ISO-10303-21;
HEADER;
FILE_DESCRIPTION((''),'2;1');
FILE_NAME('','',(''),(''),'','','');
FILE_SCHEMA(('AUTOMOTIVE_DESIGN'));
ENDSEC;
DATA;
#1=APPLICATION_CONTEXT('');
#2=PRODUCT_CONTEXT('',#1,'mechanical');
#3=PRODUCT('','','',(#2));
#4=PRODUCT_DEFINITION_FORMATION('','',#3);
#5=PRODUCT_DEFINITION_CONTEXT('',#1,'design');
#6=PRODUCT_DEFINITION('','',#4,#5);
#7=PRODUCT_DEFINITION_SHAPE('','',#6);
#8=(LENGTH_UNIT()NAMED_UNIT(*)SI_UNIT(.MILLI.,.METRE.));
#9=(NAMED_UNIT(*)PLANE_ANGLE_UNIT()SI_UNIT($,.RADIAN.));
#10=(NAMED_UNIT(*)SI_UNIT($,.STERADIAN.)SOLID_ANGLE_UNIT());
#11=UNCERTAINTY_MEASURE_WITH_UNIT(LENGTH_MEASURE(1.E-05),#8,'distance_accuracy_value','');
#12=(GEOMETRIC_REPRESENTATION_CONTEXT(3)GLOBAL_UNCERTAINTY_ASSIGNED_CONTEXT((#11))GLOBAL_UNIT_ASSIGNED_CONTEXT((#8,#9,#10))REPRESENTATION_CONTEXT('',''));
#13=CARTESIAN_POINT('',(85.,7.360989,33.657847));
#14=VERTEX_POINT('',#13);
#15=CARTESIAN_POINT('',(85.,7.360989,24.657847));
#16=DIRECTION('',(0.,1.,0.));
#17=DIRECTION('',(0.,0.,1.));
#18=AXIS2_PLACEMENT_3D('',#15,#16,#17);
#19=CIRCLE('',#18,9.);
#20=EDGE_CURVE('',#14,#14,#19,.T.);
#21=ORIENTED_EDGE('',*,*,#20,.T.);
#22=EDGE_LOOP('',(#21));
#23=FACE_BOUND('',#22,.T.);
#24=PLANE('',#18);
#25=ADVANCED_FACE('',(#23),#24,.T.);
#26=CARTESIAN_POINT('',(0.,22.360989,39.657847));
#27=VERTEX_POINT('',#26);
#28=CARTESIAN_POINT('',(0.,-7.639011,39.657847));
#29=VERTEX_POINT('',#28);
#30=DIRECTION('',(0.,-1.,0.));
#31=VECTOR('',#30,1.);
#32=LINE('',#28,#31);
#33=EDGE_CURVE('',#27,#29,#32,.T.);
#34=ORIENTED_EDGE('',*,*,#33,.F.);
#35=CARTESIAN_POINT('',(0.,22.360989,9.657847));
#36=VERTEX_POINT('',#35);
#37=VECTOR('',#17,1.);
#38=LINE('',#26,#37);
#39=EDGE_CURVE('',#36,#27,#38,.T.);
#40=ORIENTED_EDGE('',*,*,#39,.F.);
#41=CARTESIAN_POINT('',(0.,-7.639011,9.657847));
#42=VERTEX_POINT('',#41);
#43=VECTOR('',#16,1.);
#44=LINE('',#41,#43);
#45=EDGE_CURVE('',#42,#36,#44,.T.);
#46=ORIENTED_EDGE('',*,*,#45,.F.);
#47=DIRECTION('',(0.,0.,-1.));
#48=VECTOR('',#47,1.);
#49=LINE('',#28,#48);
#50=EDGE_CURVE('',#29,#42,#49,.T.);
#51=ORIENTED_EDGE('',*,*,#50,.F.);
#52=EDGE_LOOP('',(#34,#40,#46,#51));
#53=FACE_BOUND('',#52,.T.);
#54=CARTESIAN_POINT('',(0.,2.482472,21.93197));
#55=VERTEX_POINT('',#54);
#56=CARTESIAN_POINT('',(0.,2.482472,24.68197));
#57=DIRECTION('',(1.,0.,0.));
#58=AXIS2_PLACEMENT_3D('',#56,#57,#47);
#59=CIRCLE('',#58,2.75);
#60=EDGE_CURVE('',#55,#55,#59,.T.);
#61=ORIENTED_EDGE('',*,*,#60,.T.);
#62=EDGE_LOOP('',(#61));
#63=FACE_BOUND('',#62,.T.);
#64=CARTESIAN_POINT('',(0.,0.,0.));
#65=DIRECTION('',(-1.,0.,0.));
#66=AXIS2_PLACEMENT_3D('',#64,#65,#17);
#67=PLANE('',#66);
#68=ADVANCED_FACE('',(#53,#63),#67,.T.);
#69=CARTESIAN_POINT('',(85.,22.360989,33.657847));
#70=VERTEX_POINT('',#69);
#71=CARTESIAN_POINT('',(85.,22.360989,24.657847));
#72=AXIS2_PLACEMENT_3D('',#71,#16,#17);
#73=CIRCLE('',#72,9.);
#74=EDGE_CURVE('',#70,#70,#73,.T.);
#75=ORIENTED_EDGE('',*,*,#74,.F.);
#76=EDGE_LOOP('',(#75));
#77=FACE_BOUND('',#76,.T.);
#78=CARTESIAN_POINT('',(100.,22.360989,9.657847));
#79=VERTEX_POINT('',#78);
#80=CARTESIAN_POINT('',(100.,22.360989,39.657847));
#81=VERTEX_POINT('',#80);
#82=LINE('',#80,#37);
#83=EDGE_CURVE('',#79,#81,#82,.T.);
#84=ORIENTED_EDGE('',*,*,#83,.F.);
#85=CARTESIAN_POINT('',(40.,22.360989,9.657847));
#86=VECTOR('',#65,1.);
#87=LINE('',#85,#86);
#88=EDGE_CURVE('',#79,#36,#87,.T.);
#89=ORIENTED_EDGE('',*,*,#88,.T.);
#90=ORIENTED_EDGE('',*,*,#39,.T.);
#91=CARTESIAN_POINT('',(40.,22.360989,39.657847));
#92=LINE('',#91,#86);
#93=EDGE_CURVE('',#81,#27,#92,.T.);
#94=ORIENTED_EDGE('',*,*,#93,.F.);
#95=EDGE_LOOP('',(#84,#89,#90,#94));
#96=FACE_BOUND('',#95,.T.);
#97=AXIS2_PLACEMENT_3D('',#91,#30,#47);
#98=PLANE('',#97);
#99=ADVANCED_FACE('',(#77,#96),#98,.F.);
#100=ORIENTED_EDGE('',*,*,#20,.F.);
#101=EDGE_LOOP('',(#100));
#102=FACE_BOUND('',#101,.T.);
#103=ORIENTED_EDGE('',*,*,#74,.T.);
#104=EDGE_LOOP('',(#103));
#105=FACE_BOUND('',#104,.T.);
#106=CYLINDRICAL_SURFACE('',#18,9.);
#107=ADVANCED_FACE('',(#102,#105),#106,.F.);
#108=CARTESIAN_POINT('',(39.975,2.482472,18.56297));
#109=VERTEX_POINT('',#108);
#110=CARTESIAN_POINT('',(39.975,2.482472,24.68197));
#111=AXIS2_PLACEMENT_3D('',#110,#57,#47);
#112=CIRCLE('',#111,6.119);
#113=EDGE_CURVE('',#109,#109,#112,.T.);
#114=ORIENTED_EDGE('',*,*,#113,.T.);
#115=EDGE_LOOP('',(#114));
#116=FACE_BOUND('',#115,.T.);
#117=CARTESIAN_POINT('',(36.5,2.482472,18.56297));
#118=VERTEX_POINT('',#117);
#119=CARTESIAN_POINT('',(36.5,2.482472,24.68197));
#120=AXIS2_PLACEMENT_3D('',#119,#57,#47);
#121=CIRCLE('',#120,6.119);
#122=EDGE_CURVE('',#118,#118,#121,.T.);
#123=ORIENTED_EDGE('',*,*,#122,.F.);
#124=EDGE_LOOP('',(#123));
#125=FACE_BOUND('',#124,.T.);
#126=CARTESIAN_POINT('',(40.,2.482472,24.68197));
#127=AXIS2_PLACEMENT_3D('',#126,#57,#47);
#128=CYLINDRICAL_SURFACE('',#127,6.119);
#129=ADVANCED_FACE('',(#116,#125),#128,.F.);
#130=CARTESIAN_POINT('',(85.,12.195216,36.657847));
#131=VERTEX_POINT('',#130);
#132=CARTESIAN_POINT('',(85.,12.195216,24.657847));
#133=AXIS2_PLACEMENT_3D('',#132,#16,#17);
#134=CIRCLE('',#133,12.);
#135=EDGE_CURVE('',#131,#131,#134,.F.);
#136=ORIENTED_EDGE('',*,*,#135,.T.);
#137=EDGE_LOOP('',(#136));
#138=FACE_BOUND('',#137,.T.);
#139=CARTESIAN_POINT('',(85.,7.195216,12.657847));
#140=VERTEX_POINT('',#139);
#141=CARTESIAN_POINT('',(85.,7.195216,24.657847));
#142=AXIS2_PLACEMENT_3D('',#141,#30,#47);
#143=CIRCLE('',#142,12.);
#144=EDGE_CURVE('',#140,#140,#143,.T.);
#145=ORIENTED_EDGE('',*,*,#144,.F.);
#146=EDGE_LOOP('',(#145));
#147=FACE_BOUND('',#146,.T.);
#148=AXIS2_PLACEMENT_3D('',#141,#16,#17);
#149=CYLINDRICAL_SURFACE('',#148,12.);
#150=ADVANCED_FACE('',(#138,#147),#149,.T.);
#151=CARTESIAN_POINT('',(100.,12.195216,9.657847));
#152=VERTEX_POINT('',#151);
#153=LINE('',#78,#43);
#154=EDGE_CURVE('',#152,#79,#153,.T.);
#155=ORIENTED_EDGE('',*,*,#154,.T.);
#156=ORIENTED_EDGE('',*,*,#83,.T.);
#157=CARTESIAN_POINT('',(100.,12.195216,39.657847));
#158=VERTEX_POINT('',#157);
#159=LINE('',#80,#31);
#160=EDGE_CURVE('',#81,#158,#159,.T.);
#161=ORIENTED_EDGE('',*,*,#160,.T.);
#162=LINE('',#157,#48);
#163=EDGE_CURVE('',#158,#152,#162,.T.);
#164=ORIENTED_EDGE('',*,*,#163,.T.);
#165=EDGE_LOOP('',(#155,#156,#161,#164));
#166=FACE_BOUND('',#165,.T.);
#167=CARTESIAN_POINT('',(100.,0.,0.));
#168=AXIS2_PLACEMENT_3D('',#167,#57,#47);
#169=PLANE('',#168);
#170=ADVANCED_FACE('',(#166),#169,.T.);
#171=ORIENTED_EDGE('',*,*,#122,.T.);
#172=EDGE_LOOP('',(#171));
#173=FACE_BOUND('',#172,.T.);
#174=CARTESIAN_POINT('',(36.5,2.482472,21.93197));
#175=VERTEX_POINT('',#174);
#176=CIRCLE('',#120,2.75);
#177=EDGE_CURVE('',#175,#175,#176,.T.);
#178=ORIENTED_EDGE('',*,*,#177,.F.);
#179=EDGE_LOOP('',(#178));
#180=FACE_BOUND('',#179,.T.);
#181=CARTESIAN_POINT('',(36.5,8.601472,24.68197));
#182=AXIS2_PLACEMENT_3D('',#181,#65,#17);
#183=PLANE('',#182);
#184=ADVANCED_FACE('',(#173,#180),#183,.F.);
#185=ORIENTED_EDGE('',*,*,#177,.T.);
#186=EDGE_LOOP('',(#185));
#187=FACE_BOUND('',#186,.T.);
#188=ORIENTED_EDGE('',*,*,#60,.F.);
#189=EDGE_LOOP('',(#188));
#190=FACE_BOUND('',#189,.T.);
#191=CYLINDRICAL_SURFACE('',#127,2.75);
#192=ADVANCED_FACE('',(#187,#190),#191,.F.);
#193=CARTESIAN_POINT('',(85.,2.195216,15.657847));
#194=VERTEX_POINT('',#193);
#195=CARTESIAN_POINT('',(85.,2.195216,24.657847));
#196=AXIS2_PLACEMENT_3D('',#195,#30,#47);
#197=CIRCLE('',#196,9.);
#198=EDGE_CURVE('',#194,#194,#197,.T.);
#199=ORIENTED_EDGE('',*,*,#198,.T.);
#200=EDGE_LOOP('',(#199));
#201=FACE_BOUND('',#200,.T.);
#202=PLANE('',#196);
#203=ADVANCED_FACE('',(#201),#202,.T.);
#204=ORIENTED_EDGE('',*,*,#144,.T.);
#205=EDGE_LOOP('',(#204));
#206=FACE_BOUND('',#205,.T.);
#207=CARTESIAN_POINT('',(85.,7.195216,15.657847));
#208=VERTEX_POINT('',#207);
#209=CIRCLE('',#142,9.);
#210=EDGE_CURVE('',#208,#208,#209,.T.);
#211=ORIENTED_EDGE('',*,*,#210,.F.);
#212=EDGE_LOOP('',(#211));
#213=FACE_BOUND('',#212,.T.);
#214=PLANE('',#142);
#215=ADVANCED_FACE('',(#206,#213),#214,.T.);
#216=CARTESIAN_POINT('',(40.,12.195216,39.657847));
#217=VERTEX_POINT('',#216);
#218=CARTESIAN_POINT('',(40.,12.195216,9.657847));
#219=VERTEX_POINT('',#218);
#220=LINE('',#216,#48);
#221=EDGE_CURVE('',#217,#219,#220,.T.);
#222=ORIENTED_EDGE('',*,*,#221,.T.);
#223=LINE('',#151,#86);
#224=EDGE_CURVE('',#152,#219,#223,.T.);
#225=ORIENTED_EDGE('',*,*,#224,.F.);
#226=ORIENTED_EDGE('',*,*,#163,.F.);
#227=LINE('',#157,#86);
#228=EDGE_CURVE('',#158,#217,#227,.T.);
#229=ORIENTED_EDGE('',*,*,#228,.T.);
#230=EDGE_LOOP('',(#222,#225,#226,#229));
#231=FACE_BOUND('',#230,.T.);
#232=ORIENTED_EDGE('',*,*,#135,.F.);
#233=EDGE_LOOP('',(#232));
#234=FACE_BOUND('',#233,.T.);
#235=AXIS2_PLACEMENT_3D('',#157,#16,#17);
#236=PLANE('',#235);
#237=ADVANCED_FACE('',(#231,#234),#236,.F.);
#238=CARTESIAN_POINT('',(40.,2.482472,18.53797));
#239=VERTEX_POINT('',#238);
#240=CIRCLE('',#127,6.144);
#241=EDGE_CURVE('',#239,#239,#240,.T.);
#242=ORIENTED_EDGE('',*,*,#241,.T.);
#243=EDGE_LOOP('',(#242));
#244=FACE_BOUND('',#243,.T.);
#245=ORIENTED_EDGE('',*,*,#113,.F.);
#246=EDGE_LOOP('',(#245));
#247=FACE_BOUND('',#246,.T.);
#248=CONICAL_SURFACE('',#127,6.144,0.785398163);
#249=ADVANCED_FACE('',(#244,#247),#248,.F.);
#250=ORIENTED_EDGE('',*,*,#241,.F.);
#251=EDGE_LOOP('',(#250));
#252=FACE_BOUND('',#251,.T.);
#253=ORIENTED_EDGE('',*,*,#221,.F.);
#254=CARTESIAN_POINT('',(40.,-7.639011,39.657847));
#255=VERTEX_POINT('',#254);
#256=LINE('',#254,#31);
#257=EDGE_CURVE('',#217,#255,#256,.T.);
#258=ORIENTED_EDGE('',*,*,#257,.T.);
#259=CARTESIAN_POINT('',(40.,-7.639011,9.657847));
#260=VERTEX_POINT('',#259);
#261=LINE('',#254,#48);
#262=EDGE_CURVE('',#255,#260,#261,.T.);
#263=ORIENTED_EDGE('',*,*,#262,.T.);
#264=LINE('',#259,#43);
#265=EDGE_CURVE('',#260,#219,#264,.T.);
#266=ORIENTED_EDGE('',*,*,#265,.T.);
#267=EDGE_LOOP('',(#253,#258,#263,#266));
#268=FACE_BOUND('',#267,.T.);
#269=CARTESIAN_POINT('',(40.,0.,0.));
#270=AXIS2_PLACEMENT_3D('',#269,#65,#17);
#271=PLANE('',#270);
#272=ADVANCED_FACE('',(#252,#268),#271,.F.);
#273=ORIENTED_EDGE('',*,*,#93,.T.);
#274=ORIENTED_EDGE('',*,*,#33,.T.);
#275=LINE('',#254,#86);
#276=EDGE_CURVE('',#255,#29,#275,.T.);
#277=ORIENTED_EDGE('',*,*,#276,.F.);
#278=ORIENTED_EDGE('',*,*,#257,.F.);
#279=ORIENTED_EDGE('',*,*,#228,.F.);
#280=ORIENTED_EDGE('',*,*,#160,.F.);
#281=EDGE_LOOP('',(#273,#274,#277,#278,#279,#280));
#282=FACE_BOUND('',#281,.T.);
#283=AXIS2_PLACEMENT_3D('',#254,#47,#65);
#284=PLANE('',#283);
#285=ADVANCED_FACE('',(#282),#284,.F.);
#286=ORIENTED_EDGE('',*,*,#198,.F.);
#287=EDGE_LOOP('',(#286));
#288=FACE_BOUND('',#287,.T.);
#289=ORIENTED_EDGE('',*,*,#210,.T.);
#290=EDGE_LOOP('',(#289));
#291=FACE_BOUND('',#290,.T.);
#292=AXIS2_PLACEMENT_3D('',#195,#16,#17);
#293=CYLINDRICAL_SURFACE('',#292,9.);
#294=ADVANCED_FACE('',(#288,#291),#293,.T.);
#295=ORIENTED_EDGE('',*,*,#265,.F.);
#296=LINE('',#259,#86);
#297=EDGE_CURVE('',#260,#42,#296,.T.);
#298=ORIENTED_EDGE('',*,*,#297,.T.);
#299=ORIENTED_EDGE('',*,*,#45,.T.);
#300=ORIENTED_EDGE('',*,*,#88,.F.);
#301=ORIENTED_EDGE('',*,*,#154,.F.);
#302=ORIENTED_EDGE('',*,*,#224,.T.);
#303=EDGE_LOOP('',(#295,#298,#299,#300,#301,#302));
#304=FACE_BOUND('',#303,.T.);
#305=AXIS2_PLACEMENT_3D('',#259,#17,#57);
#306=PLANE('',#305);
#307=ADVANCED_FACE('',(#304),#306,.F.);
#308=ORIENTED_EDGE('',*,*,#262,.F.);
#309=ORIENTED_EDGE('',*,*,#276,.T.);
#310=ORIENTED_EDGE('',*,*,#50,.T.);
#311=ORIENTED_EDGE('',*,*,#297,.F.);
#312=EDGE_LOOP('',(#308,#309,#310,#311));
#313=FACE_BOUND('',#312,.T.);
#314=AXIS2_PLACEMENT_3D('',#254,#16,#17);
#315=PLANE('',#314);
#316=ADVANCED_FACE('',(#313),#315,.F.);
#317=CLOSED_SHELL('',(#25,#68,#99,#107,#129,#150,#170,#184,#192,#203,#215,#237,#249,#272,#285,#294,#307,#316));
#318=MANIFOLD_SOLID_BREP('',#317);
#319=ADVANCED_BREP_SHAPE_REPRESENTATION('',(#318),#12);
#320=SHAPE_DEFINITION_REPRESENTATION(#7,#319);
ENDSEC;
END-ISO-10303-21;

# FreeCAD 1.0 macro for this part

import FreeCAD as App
import Part
import Sketcher
from FreeCAD import Vector
Q = App.Units.Quantity

doc = App.newDocument("Part")
body = doc.addObject("PartDesign::Body", "Body")

# Sketch on YZ plane
sketch1 = doc.addObject("Sketcher::SketchObject", "Sketch")
body.addObject(sketch1)
sketch1.AttachmentSupport = (doc.YZ_Plane, [""])
sketch1.MapMode = "FlatFace"
sketch1.addGeometry(Part.LineSegment(Vector(22, 40, 0), Vector(-8, 40, 0)), False)
sketch1.addGeometry(Part.LineSegment(Vector(-8, 40, 0), Vector(-8, 10, 0)), False)
sketch1.addGeometry(Part.LineSegment(Vector(-8, 10, 0), Vector(22, 10, 0)), False)
sketch1.addGeometry(Part.LineSegment(Vector(22, 10, 0), Vector(22, 40, 0)), False)
sketch1.addConstraint(Sketcher.Constraint("Coincident", 0, 2, 1, 1))
sketch1.addConstraint(Sketcher.Constraint("Coincident", 1, 2, 2, 1))
sketch1.addConstraint(Sketcher.Constraint("Coincident", 2, 2, 3, 1))
sketch1.addConstraint(Sketcher.Constraint("Coincident", 3, 2, 0, 1))
sketch1.addConstraint(Sketcher.Constraint("Horizontal", 0))
sketch1.addConstraint(Sketcher.Constraint("Vertical", 1))
sketch1.addConstraint(Sketcher.Constraint("Horizontal", 2))
sketch1.addConstraint(Sketcher.Constraint("Vertical", 3))
sketch1.addConstraint(Sketcher.Constraint("Equal", 2, 1))
sketch1.addConstraint(Sketcher.Constraint("DistanceX", 0, 2, 0, 1, 30.0))
sketch1.addConstraint(Sketcher.Constraint("DistanceX", 0, 2, -1, 1, 7.639011))
sketch1.addConstraint(Sketcher.Constraint("DistanceY", -1, 1, 0, 2, 39.657847))
pad1 = doc.addObject("PartDesign::Pad", "Pad")
body.addObject(pad1)
pad1.Profile = sketch1
pad1.Length = 40

# Sketch on YZ plane
sketch2 = doc.addObject("Sketcher::SketchObject", "Sketch001")
body.addObject(sketch2)
sketch2.AttachmentSupport = (doc.YZ_Plane, [""])
sketch2.MapMode = "FlatFace"
sketch2.AttachmentOffset = App.Placement(Vector(0, 0, 40), App.Rotation())
sketch2.addGeometry(Part.LineSegment(Vector(22, 40, 0), Vector(12, 40, 0)), False)
sketch2.addGeometry(Part.LineSegment(Vector(12, 40, 0), Vector(12, 10, 0)), False)
sketch2.addGeometry(Part.LineSegment(Vector(12, 10, 0), Vector(22, 10, 0)), False)
sketch2.addGeometry(Part.LineSegment(Vector(22, 10, 0), Vector(22, 40, 0)), False)
sketch2.addConstraint(Sketcher.Constraint("Coincident", 0, 2, 1, 1))
sketch2.addConstraint(Sketcher.Constraint("Coincident", 1, 2, 2, 1))
sketch2.addConstraint(Sketcher.Constraint("Coincident", 2, 2, 3, 1))
sketch2.addConstraint(Sketcher.Constraint("Coincident", 3, 2, 0, 1))
sketch2.addConstraint(Sketcher.Constraint("Horizontal", 0))
sketch2.addConstraint(Sketcher.Constraint("Vertical", 1))
sketch2.addConstraint(Sketcher.Constraint("Horizontal", 2))
sketch2.addConstraint(Sketcher.Constraint("Vertical", 3))
sketch2.addConstraint(Sketcher.Constraint("DistanceY", 1, 2, 1, 1, 30.0))
sketch2.addConstraint(Sketcher.Constraint("DistanceX", 0, 2, 0, 1, 10.165772))
sketch2.addConstraint(Sketcher.Constraint("DistanceX", -1, 1, 2, 2, 22.360989))
sketch2.addConstraint(Sketcher.Constraint("DistanceY", -1, 1, 0, 2, 39.657847))
pad2 = doc.addObject("PartDesign::Pad", "Pad001")
body.addObject(pad2)
pad2.Profile = sketch2
pad2.Length = 60

# Sketch on XZ plane
sketch3 = doc.addObject("Sketcher::SketchObject", "Sketch002")
body.addObject(sketch3)
sketch3.AttachmentSupport = (doc.XZ_Plane, [""])
sketch3.MapMode = "FlatFace"
sketch3.AttachmentOffset = App.Placement(Vector(0, 0, -12.195216), App.Rotation())
sketch3.addGeometry(Part.Circle(Vector(85, 25, 0), Vector(0, 0, 1), 12), False)
sketch3.addConstraint(Sketcher.Constraint("Diameter", 0, 24.0))
sketch3.addConstraint(Sketcher.Constraint("DistanceX", -1, 1, 0, 3, 85.0))
sketch3.addConstraint(Sketcher.Constraint("DistanceY", -1, 1, 0, 3, 24.657847))
pad3 = doc.addObject("PartDesign::Pad", "Pad002")
body.addObject(pad3)
pad3.Profile = sketch3
pad3.Length = 5

# Sketch on XZ plane
sketch4 = doc.addObject("Sketcher::SketchObject", "Sketch003")
body.addObject(sketch4)
sketch4.AttachmentSupport = (doc.XZ_Plane, [""])
sketch4.MapMode = "FlatFace"
sketch4.AttachmentOffset = App.Placement(Vector(0, 0, -7.195216), App.Rotation())
sketch4.addGeometry(Part.Circle(Vector(85, 25, 0), Vector(0, 0, 1), 9), False)
sketch4.addConstraint(Sketcher.Constraint("Diameter", 0, 18.0))
sketch4.addConstraint(Sketcher.Constraint("DistanceX", -1, 1, 0, 3, 85.0))
sketch4.addConstraint(Sketcher.Constraint("DistanceY", -1, 1, 0, 3, 24.657847))
pad4 = doc.addObject("PartDesign::Pad", "Pad003")
body.addObject(pad4)
pad4.Profile = sketch4
pad4.Length = 5

# Sketch on XZ plane
sketch5 = doc.addObject("Sketcher::SketchObject", "Sketch004")
body.addObject(sketch5)
sketch5.AttachmentSupport = (doc.XZ_Plane, [""])
sketch5.MapMode = "FlatFace"
sketch5.AttachmentOffset = App.Placement(Vector(0, 0, -2.482472), App.Rotation())
sketch5.addGeometry(Part.LineSegment(Vector(0, 24.68197, 0), Vector(40, 24.68197, 0)), False)
sketch5.addGeometry(Part.LineSegment(Vector(40, 24.68197, 0), Vector(40, 18.53797, 0)), False)
sketch5.addGeometry(Part.LineSegment(Vector(40, 18.53797, 0), Vector(39.975, 18.56297, 0)), False)
sketch5.addGeometry(Part.LineSegment(Vector(39.975, 18.56297, 0), Vector(36.5, 18.56297, 0)), False)
sketch5.addGeometry(Part.LineSegment(Vector(36.5, 18.56297, 0), Vector(36.5, 21.93197, 0)), False)
sketch5.addGeometry(Part.LineSegment(Vector(36.5, 21.93197, 0), Vector(0, 21.93197, 0)), False)
sketch5.addGeometry(Part.LineSegment(Vector(0, 21.93197, 0), Vector(0, 24.68197, 0)), False)
sketch5.addGeometry(Part.LineSegment(Vector(40, 24.68197, 0), Vector(0, 24.68197, 0)), True)  # axis
sketch5.addConstraint(Sketcher.Constraint("Coincident", 0, 2, 1, 1))
sketch5.addConstraint(Sketcher.Constraint("Coincident", 1, 2, 2, 1))
sketch5.addConstraint(Sketcher.Constraint("Coincident", 2, 2, 3, 1))
sketch5.addConstraint(Sketcher.Constraint("Coincident", 3, 2, 4, 1))
sketch5.addConstraint(Sketcher.Constraint("Coincident", 4, 2, 5, 1))
sketch5.addConstraint(Sketcher.Constraint("Coincident", 5, 2, 6, 1))
sketch5.addConstraint(Sketcher.Constraint("Coincident", 6, 2, 0, 1))
sketch5.addConstraint(Sketcher.Constraint("Horizontal", 0))
sketch5.addConstraint(Sketcher.Constraint("Vertical", 1))
sketch5.addConstraint(Sketcher.Constraint("Horizontal", 3))
sketch5.addConstraint(Sketcher.Constraint("Vertical", 4))
sketch5.addConstraint(Sketcher.Constraint("Horizontal", 5))
sketch5.addConstraint(Sketcher.Constraint("Vertical", 6))
sketch5.addConstraint(Sketcher.Constraint("Horizontal", 7))
sketch5.addConstraint(Sketcher.Constraint("Coincident", 7, 1, 0, 2))
sketch5.addConstraint(Sketcher.Constraint("PointOnObject", 5, 2, -2))
sketch5.addConstraint(Sketcher.Constraint("PointOnObject", 7, 2, -2))
sketch5.addConstraint(Sketcher.Constraint("DistanceX", 0, 1, 0, 2, 40.0))
sketch5.addConstraint(Sketcher.Constraint("Angle", 2, Q("135 deg")))
sketch5.addConstraint(Sketcher.Constraint("DistanceX", 5, 2, 5, 1, 36.5))
sketch5.addConstraint(Sketcher.Constraint("DistanceY", 6, 1, 6, 2, 2.75))
sketch5.addConstraint(Sketcher.Constraint("DistanceX", 3, 2, 3, 1, 3.475))
sketch5.addConstraint(Sketcher.Constraint("DistanceY", 1, 2, 1, 1, 6.144))
sketch5.addConstraint(Sketcher.Constraint("DistanceY", -1, 1, 0, 2, 24.68197))
groove = doc.addObject("PartDesign::Groove", "Groove")
body.addObject(groove)
groove.Profile = sketch5
groove.ReferenceAxis = (sketch5, ["Axis0"])
groove.Angle = 360

# Sketch on XZ plane
sketch6 = doc.addObject("Sketcher::SketchObject", "Sketch005")
body.addObject(sketch6)
sketch6.AttachmentSupport = (doc.XZ_Plane, [""])
sketch6.MapMode = "FlatFace"
sketch6.AttachmentOffset = App.Placement(Vector(0, 0, -22.360989), App.Rotation())
sketch6.addGeometry(Part.Circle(Vector(85, 25, 0), Vector(0, 0, 1), 9), False)
sketch6.addConstraint(Sketcher.Constraint("Diameter", 0, 18.0))
sketch6.addConstraint(Sketcher.Constraint("DistanceX", -1, 1, 0, 3, 85.0))
sketch6.addConstraint(Sketcher.Constraint("DistanceY", -1, 1, 0, 3, 24.657847))
pocket1 = doc.addObject("PartDesign::Pocket", "Pocket")
body.addObject(pocket1)
pocket1.Profile = sketch6
pocket1.Length = 15
pocket1.Reversed = True

doc.recompute()
